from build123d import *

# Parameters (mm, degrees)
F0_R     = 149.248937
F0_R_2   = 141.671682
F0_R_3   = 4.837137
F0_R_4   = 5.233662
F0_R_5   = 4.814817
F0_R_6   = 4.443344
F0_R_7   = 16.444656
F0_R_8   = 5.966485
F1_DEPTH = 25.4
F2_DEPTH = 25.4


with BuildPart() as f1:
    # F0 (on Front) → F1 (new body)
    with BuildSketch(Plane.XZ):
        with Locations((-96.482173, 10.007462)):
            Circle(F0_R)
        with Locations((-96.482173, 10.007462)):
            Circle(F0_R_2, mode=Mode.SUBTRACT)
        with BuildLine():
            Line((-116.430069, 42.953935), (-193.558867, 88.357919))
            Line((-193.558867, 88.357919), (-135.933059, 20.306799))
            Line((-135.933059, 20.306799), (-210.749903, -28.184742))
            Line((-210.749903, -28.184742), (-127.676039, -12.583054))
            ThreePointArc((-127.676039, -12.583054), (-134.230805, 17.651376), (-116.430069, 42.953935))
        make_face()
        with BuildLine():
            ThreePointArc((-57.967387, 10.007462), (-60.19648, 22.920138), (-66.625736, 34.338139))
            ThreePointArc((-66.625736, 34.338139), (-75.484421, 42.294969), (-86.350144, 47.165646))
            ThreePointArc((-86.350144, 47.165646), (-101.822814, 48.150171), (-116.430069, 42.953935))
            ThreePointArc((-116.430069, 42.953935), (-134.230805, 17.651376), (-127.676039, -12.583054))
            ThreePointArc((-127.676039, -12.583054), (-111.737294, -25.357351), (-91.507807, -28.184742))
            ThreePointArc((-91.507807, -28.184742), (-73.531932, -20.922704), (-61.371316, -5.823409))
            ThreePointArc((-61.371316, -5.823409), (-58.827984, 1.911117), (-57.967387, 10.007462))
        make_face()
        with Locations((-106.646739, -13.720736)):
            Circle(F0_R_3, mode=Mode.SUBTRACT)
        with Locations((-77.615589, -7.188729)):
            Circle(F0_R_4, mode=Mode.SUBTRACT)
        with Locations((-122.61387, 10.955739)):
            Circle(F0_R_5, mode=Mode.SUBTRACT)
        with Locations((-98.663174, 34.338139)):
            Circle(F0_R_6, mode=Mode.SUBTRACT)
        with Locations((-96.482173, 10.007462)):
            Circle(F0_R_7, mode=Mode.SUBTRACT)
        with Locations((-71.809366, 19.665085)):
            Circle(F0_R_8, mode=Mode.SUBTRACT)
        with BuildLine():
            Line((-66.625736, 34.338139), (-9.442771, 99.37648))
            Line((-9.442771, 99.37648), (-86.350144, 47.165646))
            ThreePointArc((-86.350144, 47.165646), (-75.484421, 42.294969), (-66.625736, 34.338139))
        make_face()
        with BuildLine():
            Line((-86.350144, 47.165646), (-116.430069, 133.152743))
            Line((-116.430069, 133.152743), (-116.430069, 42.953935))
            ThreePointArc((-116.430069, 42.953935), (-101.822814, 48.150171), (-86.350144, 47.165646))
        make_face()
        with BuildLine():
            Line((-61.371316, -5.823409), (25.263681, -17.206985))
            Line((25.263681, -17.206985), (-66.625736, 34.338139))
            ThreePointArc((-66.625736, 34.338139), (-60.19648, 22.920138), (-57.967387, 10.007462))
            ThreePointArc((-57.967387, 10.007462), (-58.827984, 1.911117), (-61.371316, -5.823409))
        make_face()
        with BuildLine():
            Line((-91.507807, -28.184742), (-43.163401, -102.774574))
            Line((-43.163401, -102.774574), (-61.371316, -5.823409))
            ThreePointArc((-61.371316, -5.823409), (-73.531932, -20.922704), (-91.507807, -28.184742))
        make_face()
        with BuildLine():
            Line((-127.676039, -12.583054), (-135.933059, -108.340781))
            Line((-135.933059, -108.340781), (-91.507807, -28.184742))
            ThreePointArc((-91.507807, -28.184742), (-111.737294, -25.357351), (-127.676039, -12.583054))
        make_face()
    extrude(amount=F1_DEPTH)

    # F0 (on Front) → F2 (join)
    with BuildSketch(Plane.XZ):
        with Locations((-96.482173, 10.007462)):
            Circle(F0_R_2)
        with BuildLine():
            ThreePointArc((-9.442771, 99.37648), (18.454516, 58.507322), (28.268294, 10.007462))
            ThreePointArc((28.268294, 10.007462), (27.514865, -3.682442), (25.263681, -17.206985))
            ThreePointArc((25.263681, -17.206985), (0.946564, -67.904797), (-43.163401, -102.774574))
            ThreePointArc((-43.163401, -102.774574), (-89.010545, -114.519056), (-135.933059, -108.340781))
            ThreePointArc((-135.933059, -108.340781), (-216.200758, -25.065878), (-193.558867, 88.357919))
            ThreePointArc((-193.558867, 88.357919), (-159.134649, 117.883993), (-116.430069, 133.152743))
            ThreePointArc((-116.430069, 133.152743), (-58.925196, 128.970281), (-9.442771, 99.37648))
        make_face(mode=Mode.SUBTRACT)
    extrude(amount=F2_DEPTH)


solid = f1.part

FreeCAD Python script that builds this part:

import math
import FreeCAD as App
import Part
import Sketcher
Q = App.Units.Quantity


def add_polygon(sketch, points):
    """Adds a closed chain of lines whose ends are joined by coincident constraints."""
    first, n = sketch.GeometryCount, len(points)
    for a, b in zip(points, points[1:] + points[:1]):
        sketch.addGeometry(Part.LineSegment(App.Vector(*a, 0), App.Vector(*b, 0)), False)
    for i in range(n):
        sketch.addConstraint(Sketcher.Constraint("Coincident", first + i, 2, first + (i + 1) % n, 1))

doc = App.newDocument("Part")
body = doc.addObject("PartDesign::Body", "Body")
body.AllowCompound = True

# Sketch on XZ plane
sketch1 = body.newObject("Sketcher::SketchObject", "Sketch")
sketch1.AttachmentSupport = (doc.getObject("XZ_Plane"), [""])
sketch1.MapMode = "FlatFace"
sketch1.addGeometry(Part.Circle(App.Vector(-96.5, 10, 0), App.Vector(0, 0, 1), 149.2), False)  # 0
sketch1.addGeometry(Part.Circle(App.Vector(-96.5, 10, 0), App.Vector(0, 0, 1), 141.7), False)  # 1
add_polygon(sketch1, [(-116.4, 43), (-193.6, 88.4), (-135.9, 20.3), (-210.7, -28.2), (-127.7, -12.6), (-135.9, -108.3), (-91.5, -28.2), (-43.2, -102.8), (-61.4, -5.8), (25.3, -17.2), (-66.6, 34.3), (-9.4, 99.4), (-86.4, 47.2), (-116.4, 133.2)])  # lines 2-15
sketch1.addGeometry(Part.Circle(App.Vector(-106.6, -13.7, 0), App.Vector(0, 0, 1), 4.8), False)  # 16
sketch1.addGeometry(Part.Circle(App.Vector(-77.6, -7.2, 0), App.Vector(0, 0, 1), 5.2), False)  # 17
sketch1.addGeometry(Part.Circle(App.Vector(-96.5, 10, 0), App.Vector(0, 0, 1), 16.4), False)  # 18
sketch1.addGeometry(Part.Circle(App.Vector(-122.6, 11, 0), App.Vector(0, 0, 1), 4.8), False)  # 19
sketch1.addGeometry(Part.Circle(App.Vector(-98.7, 34.3, 0), App.Vector(0, 0, 1), 4.4), False)  # 20
sketch1.addGeometry(Part.Circle(App.Vector(-71.8, 19.7, 0), App.Vector(0, 0, 1), 6), False)  # 21
sketch1.addConstraint([
    Sketcher.Constraint("Vertical", 15),
    Sketcher.Constraint("Coincident", 1, 3, 0, 3),
    Sketcher.Constraint("Coincident", 18, 3, 0, 3),
    Sketcher.Constraint("Perpendicular", 4, 8),
    Sketcher.Constraint("Perpendicular", 5, 9),
    Sketcher.Constraint("Horizontal", 4, 2, 7, 2),
    Sketcher.Constraint("Horizontal", 20, 3, 11, 2),
    Sketcher.Constraint("Vertical", 3, 2, 6, 2),
    Sketcher.Constraint("Diameter", 18, Q("32.889312 mm")),
    Sketcher.Constraint("Diameter", 21, Q("11.93297 mm")),
    Sketcher.Constraint("Diameter", 0, Q("298.497874 mm")),
    Sketcher.Constraint("Diameter", 1, Q("283.343364 mm")),
    Sketcher.Constraint("Diameter", 16, Q("9.674274 mm")),
    Sketcher.Constraint("Diameter", 17, Q("10.467324 mm")),
    Sketcher.Constraint("Diameter", 19, Q("9.629634 mm")),
    Sketcher.Constraint("Diameter", 20, Q("8.886688 mm")),
    Sketcher.Constraint("DistanceY", -1, 1, 15, 2, Q("1.6910998 in")),
    Sketcher.Constraint("DistanceY", 10, 2, 12, 2, Q("4.5899002 in")),
    Sketcher.Constraint("DistanceY", -1, 1, 3, 2, Q("20.306799 mm")),
    Sketcher.Constraint("DistanceX", 8, 2, -1, 1, Q("43.163401 mm")),
    Sketcher.Constraint("DistanceX", 20, 3, 0, 3, Q("2.181001 mm")),
    Sketcher.Constraint("DistanceY", 19, 3, 20, 3, Q("23.3824 mm")),
    Sketcher.Constraint("DistanceX", 5, 2, 16, 3, Q("21.0293 mm")),
    Sketcher.Constraint("DistanceX", 14, 2, 12, 2, Q("106.987298 mm")),
    Sketcher.Constraint("DistanceX", 19, 3, 15, 2, Q("6.183801 mm")),
    Sketcher.Constraint("Distance", 2, Q("89.500689 mm")),
    Sketcher.Constraint("Distance", 3, Q("89.172242 mm")),
    Sketcher.Constraint("Distance", 6, Q("96.113062 mm")),
    Sketcher.Constraint("Distance", 7, Q("91.643841 mm")),
    Sketcher.Constraint("Distance", 10, Q("87.37968 mm")),
    Sketcher.Constraint("Distance", 12, Q("86.601832 mm")),
    Sketcher.Constraint("DistanceY", 15, 2, 15, 1, Q("90.198808 mm")),
    Sketcher.Constraint("DistanceX", 16, 3, -1, 1, Q("106.646739 mm")),
    Sketcher.Constraint("DistanceX", 17, 3, -1, 1, Q("77.615589 mm")),
    Sketcher.Constraint("DistanceY", 17, 3, -1, 1, Q("7.188729 mm")),
    Sketcher.Constraint("DistanceX", 19, 3, -1, 1, Q("122.61387 mm")),
    Sketcher.Constraint("DistanceY", -1, 1, 19, 3, Q("10.955739 mm")),
    Sketcher.Constraint("DistanceY", -1, 1, 2, 2, Q("88.357919 mm")),
    Sketcher.Constraint("DistanceY", 4, 2, -1, 1, Q("28.184742 mm")),
    Sketcher.Constraint("DistanceY", 6, 2, -1, 1, Q("108.340781 mm")),
    Sketcher.Constraint("DistanceY", 9, 2, -1, 1, Q("5.823409 mm")),
    Sketcher.Constraint("DistanceX", -1, 1, 10, 2, Q("25.263681 mm")),
    Sketcher.Constraint("DistanceY", -1, 1, 12, 2, Q("99.37648 mm")),
    Sketcher.Constraint("DistanceY", 17, 3, 0, 3, Q("17.196191 mm")),
    Sketcher.Constraint("DistanceX", 20, 3, 21, 3, Q("26.853808 mm")),
    Sketcher.Constraint("DistanceX", 4, 2, 0, 3, Q("114.26773 mm")),
    Sketcher.Constraint("DistanceY", 16, 3, 5, 2, Q("1.137682 mm")),
    Sketcher.Constraint("DistanceY", 10, 2, 21, 3, Q("36.87207 mm")),
    Sketcher.Constraint("DistanceX", 20, 3, 13, 2, Q("12.31303 mm")),
    Sketcher.Constraint("DistanceY", 21, 3, 13, 2, Q("27.500561 mm")),
])
pad1 = body.newObject("PartDesign::Pad", "Pad")
pad1.Profile = sketch1
pad1.Length = Q("1 in")

# Sketch on XZ plane
sketch2 = body.newObject("Sketcher::SketchObject", "Sketch001")
sketch2.AttachmentSupport = (doc.getObject("XZ_Plane"), [""])
sketch2.MapMode = "FlatFace"
sketch2.addGeometry([
    Part.Circle(App.Vector(-96.482173, 10.007462, 0), App.Vector(0, 0, 1), 141.671682),  # 0
    Part.ArcOfCircle(Part.Circle(App.Vector(-96.482173, 10.007462, 0), App.Vector(0, 0, 1), 124.750467), math.radians(45.756593), math.radians(99.20123)),  # 1
    Part.ArcOfCircle(Part.Circle(App.Vector(-96.482175, 10.00746, 0), App.Vector(0, 0, 1), 124.750469), math.radians(0.000001), math.radians(45.756593)),  # 2
    Part.ArcOfCircle(Part.Circle(App.Vector(-96.482272, 10.007472, 0), App.Vector(0, 0, 1), 124.750566), math.radians(-12.600454), math.radians(-0.000004)),  # 3
    Part.ArcOfCircle(Part.Circle(App.Vector(-96.482179, 10.007467, 0), App.Vector(0, 0, 1), 124.750474), math.radians(-64.697113), math.radians(-12.600461)),  # 4
    Part.ArcOfCircle(Part.Circle(App.Vector(-96.482173, 10.00747, 0), App.Vector(0, 0, 1), 124.750475), math.radians(-108.435589), math.radians(-64.697117)),  # 5
    Part.ArcOfCircle(Part.Circle(App.Vector(-96.482172, 10.007461, 0), App.Vector(0, 0, 1), 124.750467), math.radians(141.093052), math.radians(251.56441)),  # 6
    Part.ArcOfCircle(Part.Circle(App.Vector(-96.482172, 10.007461, 0), App.Vector(0, 0, 1), 124.750467), math.radians(99.20123), math.radians(141.093052)),  # 7
], False)
sketch2.addConstraint([
    Sketcher.Constraint("Coincident", 1, 1, 2, 2),
    Sketcher.Constraint("Coincident", 2, 1, 3, 2),
    Sketcher.Constraint("Coincident", 3, 1, 4, 2),
    Sketcher.Constraint("Coincident", 4, 1, 5, 2),
    Sketcher.Constraint("Coincident", 5, 1, 6, 2),
    Sketcher.Constraint("Coincident", 6, 1, 7, 2),
    Sketcher.Constraint("Coincident", 7, 1, 1, 2),
    Sketcher.Constraint("Coincident", 1, 3, 0, 3),
    Sketcher.Constraint("Coincident", 2, 3, 0, 3),
    Sketcher.Constraint("Coincident", 4, 3, 0, 3),
    Sketcher.Constraint("Coincident", 5, 3, 0, 3),
    Sketcher.Constraint("Coincident", 6, 3, 0, 3),
    Sketcher.Constraint("Coincident", 7, 3, 0, 3),
    Sketcher.Constraint("Radius", 2, Q("124.750469 mm")),
    Sketcher.Constraint("Diameter", 0, Q("283.343364 mm")),
    Sketcher.Constraint("Radius", 3, Q("124.750566 mm")),
    Sketcher.Constraint("DistanceY", 3, 1, 1, 1, Q("4.5899002 in")),
    Sketcher.Constraint("DistanceX", 4, 1, -1, 1, Q("43.163401 mm")),
    Sketcher.Constraint("DistanceX", 7, 3, 1, 1, Q("87.039401 mm")),
    Sketcher.Constraint("DistanceX", 6, 1, 7, 1, Q("77.128798 mm")),
    Sketcher.Constraint("DistanceX", 7, 1, 1, 1, Q("106.987298 mm")),
    Sketcher.Constraint("DistanceY", -1, 1, 1, 3, Q("10.007462 mm")),
    Sketcher.Constraint("DistanceX", 4, 3, -1, 1, Q("96.482179 mm")),
    Sketcher.Constraint("DistanceX", 5, 1, -1, 1, Q("135.933059 mm")),
    Sketcher.Constraint("DistanceY", 2, 1, 1, 1, Q("89.369018 mm")),
])
pad2 = body.newObject("PartDesign::Pad", "Pad001")
pad2.Profile = sketch2
pad2.Length = Q("1 in")

doc.recompute()
